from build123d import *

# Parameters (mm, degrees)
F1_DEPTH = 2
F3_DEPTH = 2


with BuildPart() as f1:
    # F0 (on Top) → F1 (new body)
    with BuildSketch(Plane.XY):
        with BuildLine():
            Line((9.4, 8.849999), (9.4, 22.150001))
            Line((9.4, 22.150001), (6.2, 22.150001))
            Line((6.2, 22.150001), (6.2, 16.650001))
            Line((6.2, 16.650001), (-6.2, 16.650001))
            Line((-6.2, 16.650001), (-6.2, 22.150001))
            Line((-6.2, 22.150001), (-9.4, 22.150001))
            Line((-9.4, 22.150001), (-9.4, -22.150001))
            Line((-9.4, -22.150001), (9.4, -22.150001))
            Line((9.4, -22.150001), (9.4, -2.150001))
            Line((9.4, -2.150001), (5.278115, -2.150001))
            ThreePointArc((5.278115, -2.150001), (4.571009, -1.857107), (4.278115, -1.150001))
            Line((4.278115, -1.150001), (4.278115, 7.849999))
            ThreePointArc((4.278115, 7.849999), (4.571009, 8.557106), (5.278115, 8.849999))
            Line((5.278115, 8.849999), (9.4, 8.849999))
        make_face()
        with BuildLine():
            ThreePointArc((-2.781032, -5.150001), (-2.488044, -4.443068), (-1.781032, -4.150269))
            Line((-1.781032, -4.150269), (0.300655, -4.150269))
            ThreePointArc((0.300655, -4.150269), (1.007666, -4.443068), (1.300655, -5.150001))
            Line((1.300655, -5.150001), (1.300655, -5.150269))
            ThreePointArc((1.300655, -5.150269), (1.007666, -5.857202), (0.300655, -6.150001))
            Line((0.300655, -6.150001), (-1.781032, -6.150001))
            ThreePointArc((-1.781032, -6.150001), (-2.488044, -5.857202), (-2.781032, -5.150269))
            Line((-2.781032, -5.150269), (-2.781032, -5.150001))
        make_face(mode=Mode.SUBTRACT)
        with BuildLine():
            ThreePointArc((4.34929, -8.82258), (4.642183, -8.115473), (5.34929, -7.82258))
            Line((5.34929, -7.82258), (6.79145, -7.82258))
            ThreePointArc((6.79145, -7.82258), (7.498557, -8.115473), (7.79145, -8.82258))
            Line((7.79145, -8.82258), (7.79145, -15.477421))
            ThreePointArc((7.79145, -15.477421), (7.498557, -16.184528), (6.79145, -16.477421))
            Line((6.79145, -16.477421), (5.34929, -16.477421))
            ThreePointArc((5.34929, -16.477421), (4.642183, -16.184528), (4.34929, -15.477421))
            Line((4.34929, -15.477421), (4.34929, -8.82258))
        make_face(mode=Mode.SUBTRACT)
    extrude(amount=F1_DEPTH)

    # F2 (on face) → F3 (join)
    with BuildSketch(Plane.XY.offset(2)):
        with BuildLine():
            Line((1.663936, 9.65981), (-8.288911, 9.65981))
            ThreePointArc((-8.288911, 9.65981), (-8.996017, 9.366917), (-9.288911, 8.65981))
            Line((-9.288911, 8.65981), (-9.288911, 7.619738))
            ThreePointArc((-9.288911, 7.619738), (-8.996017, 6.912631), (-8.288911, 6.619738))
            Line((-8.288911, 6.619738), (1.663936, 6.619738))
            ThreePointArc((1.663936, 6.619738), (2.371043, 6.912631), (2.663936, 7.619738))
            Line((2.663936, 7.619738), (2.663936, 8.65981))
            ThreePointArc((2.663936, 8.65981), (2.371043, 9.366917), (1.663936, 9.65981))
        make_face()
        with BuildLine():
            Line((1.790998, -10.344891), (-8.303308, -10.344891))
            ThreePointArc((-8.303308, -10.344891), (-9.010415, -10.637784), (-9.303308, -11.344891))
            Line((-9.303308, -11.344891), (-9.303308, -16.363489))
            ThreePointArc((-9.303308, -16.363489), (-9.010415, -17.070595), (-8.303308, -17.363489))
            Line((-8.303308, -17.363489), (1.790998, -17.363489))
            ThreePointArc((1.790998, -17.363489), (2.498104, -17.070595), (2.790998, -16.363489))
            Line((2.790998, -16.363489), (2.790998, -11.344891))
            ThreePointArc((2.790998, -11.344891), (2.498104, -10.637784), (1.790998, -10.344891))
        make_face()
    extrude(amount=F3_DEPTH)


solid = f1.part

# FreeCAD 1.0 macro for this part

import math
import FreeCAD as App
import Part
import Sketcher

doc = App.newDocument("Part")
body = doc.addObject("PartDesign::Body", "Body")

sketch1 = body.newObject("Sketcher::SketchObject", "Sketch")
sketch1.AttachmentSupport = (doc.getObject("XY_Plane"), [""])
sketch1.MapMode = "FlatFace"
sketch1.addGeometry([
    Part.LineSegment(App.Vector(9.4, 8.85, 0), App.Vector(9.4, 22.15, 0)),
    Part.LineSegment(App.Vector(9.4, 22.15, 0), App.Vector(6.2, 22.15, 0)),
    Part.LineSegment(App.Vector(6.2, 22.15, 0), App.Vector(6.2, 16.65, 0)),
    Part.LineSegment(App.Vector(6.2, 16.65, 0), App.Vector(-6.2, 16.65, 0)),
    Part.LineSegment(App.Vector(-6.2, 16.65, 0), App.Vector(-6.2, 22.15, 0)),
    Part.LineSegment(App.Vector(-6.2, 22.15, 0), App.Vector(-9.4, 22.15, 0)),
    Part.LineSegment(App.Vector(-9.4, 22.15, 0), App.Vector(-9.4, -22.15, 0)),
    Part.LineSegment(App.Vector(-9.4, -22.15, 0), App.Vector(9.4, -22.15, 0)),
    Part.LineSegment(App.Vector(9.4, -22.15, 0), App.Vector(9.4, -2.15, 0)),
    Part.LineSegment(App.Vector(9.4, -2.15, 0), App.Vector(5.27811, -2.15, 0)),
    Part.ArcOfCircle(Part.Circle(App.Vector(5.27812, -1.15, 0), App.Vector(0, 0, 1), 1), math.radians(-180), math.radians(-90)),
    Part.LineSegment(App.Vector(4.27811, -1.15, 0), App.Vector(4.27811, 7.85, 0)),
    Part.ArcOfCircle(Part.Circle(App.Vector(5.27812, 7.85, 0), App.Vector(0, 0, 1), 1), math.radians(90), math.radians(180)),
    Part.LineSegment(App.Vector(5.27811, 8.85, 0), App.Vector(9.4, 8.85, 0)),
    Part.LineSegment(App.Vector(4.34929, -15.47742, 0), App.Vector(4.34929, -8.82258, 0)),
    Part.ArcOfCircle(Part.Circle(App.Vector(5.34929, -8.82258, 0), App.Vector(0, 0, 1), 1), math.radians(90), math.radians(180)),
    Part.LineSegment(App.Vector(5.34929, -7.82258, 0), App.Vector(6.79145, -7.82258, 0)),
    Part.ArcOfCircle(Part.Circle(App.Vector(6.79145, -8.82258, 0), App.Vector(0, 0, 1), 1), math.radians(0), math.radians(90)),
    Part.LineSegment(App.Vector(7.79145, -8.82258, 0), App.Vector(7.79145, -15.47742, 0)),
    Part.ArcOfCircle(Part.Circle(App.Vector(6.79145, -15.47742, 0), App.Vector(0, 0, 1), 1), math.radians(-90), math.radians(0)),
    Part.LineSegment(App.Vector(6.79145, -16.47742, 0), App.Vector(5.34929, -16.47742, 0)),
    Part.ArcOfCircle(Part.Circle(App.Vector(5.34929, -15.47742, 0), App.Vector(0, 0, 1), 1), math.radians(180), math.radians(270)),
    Part.LineSegment(App.Vector(-2.78103, -5.15027, 0), App.Vector(-2.78103, -5.15, 0)),
    Part.ArcOfCircle(Part.Circle(App.Vector(-1.78103, -5.15027, 0), App.Vector(0, 0, 1), 1), math.radians(90), math.radians(180)),
    Part.LineSegment(App.Vector(-1.78103, -4.15027, 0), App.Vector(0.30066, -4.15027, 0)),
    Part.ArcOfCircle(Part.Circle(App.Vector(0.30065, -5.15027, 0), App.Vector(0, 0, 1), 1), math.radians(0), math.radians(90)),
    Part.LineSegment(App.Vector(1.30065, -5.15, 0), App.Vector(1.30065, -5.15027, 0)),
    Part.ArcOfCircle(Part.Circle(App.Vector(0.30065, -5.15, 0), App.Vector(0, 0, 1), 1), math.radians(-90), math.radians(0)),
    Part.LineSegment(App.Vector(0.30066, -6.15, 0), App.Vector(-1.78103, -6.15, 0)),
    Part.ArcOfCircle(Part.Circle(App.Vector(-1.78103, -5.15, 0), App.Vector(0, 0, 1), 1), math.radians(-180), math.radians(-90)),
], False)
sketch1.addConstraint([
    Sketcher.Constraint("Coincident", 0, 2, 1, 1),
    Sketcher.Constraint("Coincident", 1, 2, 2, 1),
    Sketcher.Constraint("Coincident", 2, 2, 3, 1),
    Sketcher.Constraint("Coincident", 3, 2, 4, 1),
    Sketcher.Constraint("Coincident", 4, 2, 5, 1),
    Sketcher.Constraint("Coincident", 5, 2, 6, 1),
    Sketcher.Constraint("Coincident", 6, 2, 7, 1),
    Sketcher.Constraint("Coincident", 7, 2, 8, 1),
    Sketcher.Constraint("Coincident", 8, 2, 9, 1),
    Sketcher.Constraint("Coincident", 9, 2, 10, 2),
    Sketcher.Constraint("Coincident", 10, 1, 11, 1),
    Sketcher.Constraint("Tangent", 11, 2, 12, 2),
    Sketcher.Constraint("Tangent", 12, 1, 13, 1),
    Sketcher.Constraint("Coincident", 13, 2, 0, 1),
    Sketcher.Constraint("Tangent", 14, 2, 15, 2),
    Sketcher.Constraint("Tangent", 15, 1, 16, 1),
    Sketcher.Constraint("Tangent", 16, 2, 17, 2),
    Sketcher.Constraint("Tangent", 17, 1, 18, 1),
    Sketcher.Constraint("Tangent", 18, 2, 19, 2),
    Sketcher.Constraint("Tangent", 19, 1, 20, 1),
    Sketcher.Constraint("Tangent", 20, 2, 21, 2),
    Sketcher.Constraint("Tangent", 21, 1, 14, 1),
    Sketcher.Constraint("Coincident", 22, 2, 23, 2),
    Sketcher.Constraint("Tangent", 23, 1, 24, 1),
    Sketcher.Constraint("Coincident", 24, 2, 25, 2),
    Sketcher.Constraint("Coincident", 25, 1, 26, 1),
    Sketcher.Constraint("Coincident", 26, 2, 27, 2),
    Sketcher.Constraint("Coincident", 27, 1, 28, 1),
    Sketcher.Constraint("Tangent", 28, 2, 29, 2),
    Sketcher.Constraint("Coincident", 29, 1, 22, 1),
    Sketcher.Constraint("Vertical", 0),
    Sketcher.Constraint("Horizontal", 1),
    Sketcher.Constraint("Vertical", 2),
    Sketcher.Constraint("Horizontal", 3),
    Sketcher.Constraint("Vertical", 4),
    Sketcher.Constraint("Horizontal", 5),
    Sketcher.Constraint("Vertical", 6),
    Sketcher.Constraint("Horizontal", 7),
    Sketcher.Constraint("Vertical", 8),
    Sketcher.Constraint("Horizontal", 9),
    Sketcher.Constraint("Vertical", 11),
    Sketcher.Constraint("Horizontal", 13),
    Sketcher.Constraint("Vertical", 14),
    Sketcher.Constraint("Horizontal", 16),
    Sketcher.Constraint("Vertical", 18),
    Sketcher.Constraint("Horizontal", 20),
    Sketcher.Constraint("Vertical", 22),
    Sketcher.Constraint("Horizontal", 24),
    Sketcher.Constraint("Vertical", 26),
    Sketcher.Constraint("Horizontal", 28),
    Sketcher.Constraint("Equal", 10, 12),
    Sketcher.Constraint("Equal", 12, 15),
    Sketcher.Constraint("Equal", 15, 17),
    Sketcher.Constraint("Equal", 17, 19),
    Sketcher.Constraint("Equal", 19, 21),
    Sketcher.Constraint("Equal", 21, 23),
    Sketcher.Constraint("Equal", 23, 25),
    Sketcher.Constraint("Equal", 25, 27),
    Sketcher.Constraint("Equal", 27, 29),
    Sketcher.Constraint("Symmetric", 0, 2, 6, 2, -1, 1),
    Sketcher.Constraint("Symmetric", 5, 2, 7, 2, -1, 1),
    Sketcher.Constraint("Horizontal", 29, 3, 22, 2),
    Sketcher.Constraint("Horizontal", 22, 2, 25, 1),
    Sketcher.Constraint("Horizontal", 23, 3, 26, 2),
    Sketcher.Constraint("Horizontal", 26, 2, 29, 1),
    Sketcher.Constraint("Vertical", 12, 3, 9, 2),
    Sketcher.Constraint("Vertical", 24, 2, 27, 1),
    Sketcher.Constraint("Equal", 1, 5),
    Sketcher.Constraint("Radius", 12, 1.000001),
    Sketcher.Constraint("DistanceY", 8, 1, 8, 2, 20.0),
    Sketcher.Constraint("DistanceY", 11, 1, 11, 2, 9.0),
    Sketcher.Constraint("DistanceX", 1, 2, 1, 1, 3.2),
    Sketcher.Constraint("DistanceX", 3, 2, 3, 1, 12.4),
    Sketcher.Constraint("DistanceY", 0, 1, 0, 2, 13.300002),
    Sketcher.Constraint("DistanceY", 2, 2, 2, 1, 5.5),
    Sketcher.Constraint("DistanceY", 27, 3, 10, 3, 4.0),
    Sketcher.Constraint("DistanceY", 9, 2, 10, 1, 1.0),
    Sketcher.Constraint("DistanceX", 24, 2, 25, 1, 1.0),
    Sketcher.Constraint("DistanceX", 16, 1, 16, 2, 1.44216),
    Sketcher.Constraint("DistanceY", 14, 1, 14, 2, 6.654841),
    Sketcher.Constraint("DistanceY", 22, 1, 22, 2, 0.000268),
    Sketcher.Constraint("DistanceX", 25, 3, 17, 3, 6.490798),
    Sketcher.Constraint("DistanceX", 9, 2, 9, 1, 4.121885),
    Sketcher.Constraint("DistanceX", 24, 1, 24, 2, 2.081687),
    Sketcher.Constraint("DistanceX", -1, 1, 15, 3, 5.349289),
    Sketcher.Constraint("DistanceY", 15, 3, -1, 1, 8.822579),
])
pad1 = body.newObject("PartDesign::Pad", "Pad")
pad1.Profile = sketch1
pad1.Length = 2

sketch2 = body.newObject("Sketcher::SketchObject", "Sketch001")
sketch2.AttachmentSupport = (doc.getObject("XY_Plane"), [""])
sketch2.MapMode = "FlatFace"
sketch2.AttachmentOffset = App.Placement(App.Vector(0, 0, 2), App.Rotation())
sketch2.addGeometry([
    Part.LineSegment(App.Vector(1.7, 9.7, 0), App.Vector(-8.3, 9.7, 0)),
    Part.ArcOfCircle(Part.Circle(App.Vector(-8.3, 8.7, 0), App.Vector(0, 0, 1), 1), math.radians(90), math.radians(180)),
    Part.LineSegment(App.Vector(-9.3, 8.7, 0), App.Vector(-9.3, 7.6, 0)),
    Part.ArcOfCircle(Part.Circle(App.Vector(-8.3, 7.6, 0), App.Vector(0, 0, 1), 1), math.radians(-180), math.radians(-90)),
    Part.LineSegment(App.Vector(-8.3, 6.6, 0), App.Vector(1.7, 6.6, 0)),
    Part.ArcOfCircle(Part.Circle(App.Vector(1.7, 7.6, 0), App.Vector(0, 0, 1), 1), math.radians(-90), math.radians(0)),
    Part.LineSegment(App.Vector(2.7, 7.6, 0), App.Vector(2.7, 8.7, 0)),
    Part.ArcOfCircle(Part.Circle(App.Vector(1.7, 8.7, 0), App.Vector(0, 0, 1), 1), math.radians(0), math.radians(90)),
    Part.LineSegment(App.Vector(1.8, -10.3, 0), App.Vector(-8.3, -10.3, 0)),
    Part.ArcOfCircle(Part.Circle(App.Vector(-8.3, -11.3, 0), App.Vector(0, 0, 1), 1), math.radians(90), math.radians(180)),
    Part.LineSegment(App.Vector(-9.3, -11.3, 0), App.Vector(-9.3, -16.4, 0)),
    Part.ArcOfCircle(Part.Circle(App.Vector(-8.3, -16.4, 0), App.Vector(0, 0, 1), 1), math.radians(-180), math.radians(-90)),
    Part.LineSegment(App.Vector(-8.3, -17.4, 0), App.Vector(1.8, -17.4, 0)),
    Part.ArcOfCircle(Part.Circle(App.Vector(1.8, -16.4, 0), App.Vector(0, 0, 1), 1), math.radians(-90), math.radians(0)),
    Part.LineSegment(App.Vector(2.8, -16.4, 0), App.Vector(2.8, -11.3, 0)),
    Part.ArcOfCircle(Part.Circle(App.Vector(1.8, -11.3, 0), App.Vector(0, 0, 1), 1), math.radians(0), math.radians(90)),
], False)
sketch2.addConstraint([
    Sketcher.Constraint("Tangent", 0, 2, 1, 1),
    Sketcher.Constraint("Tangent", 1, 2, 2, 1),
    Sketcher.Constraint("Tangent", 2, 2, 3, 1),
    Sketcher.Constraint("Tangent", 3, 2, 4, 1),
    Sketcher.Constraint("Tangent", 4, 2, 5, 1),
    Sketcher.Constraint("Tangent", 5, 2, 6, 1),
    Sketcher.Constraint("Tangent", 6, 2, 7, 1),
    Sketcher.Constraint("Tangent", 7, 2, 0, 1),
    Sketcher.Constraint("Tangent", 8, 2, 9, 1),
    Sketcher.Constraint("Tangent", 9, 2, 10, 1),
    Sketcher.Constraint("Tangent", 10, 2, 11, 1),
    Sketcher.Constraint("Tangent", 11, 2, 12, 1),
    Sketcher.Constraint("Coincident", 12, 2, 13, 1),
    Sketcher.Constraint("Coincident", 13, 2, 14, 1),
    Sketcher.Constraint("Tangent", 14, 2, 15, 1),
    Sketcher.Constraint("Tangent", 15, 2, 8, 1),
    Sketcher.Constraint("Horizontal", 0),
    Sketcher.Constraint("Vertical", 2),
    Sketcher.Constraint("Horizontal", 4),
    Sketcher.Constraint("Vertical", 6),
    Sketcher.Constraint("Horizontal", 8),
    Sketcher.Constraint("Vertical", 10),
    Sketcher.Constraint("Horizontal", 12),
    Sketcher.Constraint("Vertical", 14),
    Sketcher.Constraint("Equal", 1, 3),
    Sketcher.Constraint("Equal", 3, 5),
    Sketcher.Constraint("Equal", 5, 7),
    Sketcher.Constraint("Equal", 7, 9),
    Sketcher.Constraint("Equal", 9, 11),
    Sketcher.Constraint("Equal", 11, 13),
    Sketcher.Constraint("Equal", 13, 15),
    Sketcher.Constraint("Horizontal", 10, 2, 13, 2),
    Sketcher.Constraint("Vertical", 15, 3, 12, 2),
    Sketcher.Constraint("Radius", 1, 1.000001),
    Sketcher.Constraint("DistanceY", 10, 2, 10, 1, 5.018598),
    Sketcher.Constraint("DistanceX", -1, 1, 12, 2, 1.790998),
    Sketcher.Constraint("DistanceX", 9, 3, 3, 3, 0.014399),
    Sketcher.Constraint("DistanceY", 9, 3, 1, 3, 20.004699),
    Sketcher.Constraint("DistanceX", 0, 2, 0, 1, 9.952847),
    Sketcher.Constraint("DistanceX", 8, 2, 8, 1, 10.094306),
    Sketcher.Constraint("DistanceY", 2, 2, 2, 1, 1.040072),
    Sketcher.Constraint("DistanceY", -1, 1, 1, 3, 8.659809),
])
pad2 = body.newObject("PartDesign::Pad", "Pad001")
pad2.Profile = sketch2
pad2.Length = 2

doc.recompute()
